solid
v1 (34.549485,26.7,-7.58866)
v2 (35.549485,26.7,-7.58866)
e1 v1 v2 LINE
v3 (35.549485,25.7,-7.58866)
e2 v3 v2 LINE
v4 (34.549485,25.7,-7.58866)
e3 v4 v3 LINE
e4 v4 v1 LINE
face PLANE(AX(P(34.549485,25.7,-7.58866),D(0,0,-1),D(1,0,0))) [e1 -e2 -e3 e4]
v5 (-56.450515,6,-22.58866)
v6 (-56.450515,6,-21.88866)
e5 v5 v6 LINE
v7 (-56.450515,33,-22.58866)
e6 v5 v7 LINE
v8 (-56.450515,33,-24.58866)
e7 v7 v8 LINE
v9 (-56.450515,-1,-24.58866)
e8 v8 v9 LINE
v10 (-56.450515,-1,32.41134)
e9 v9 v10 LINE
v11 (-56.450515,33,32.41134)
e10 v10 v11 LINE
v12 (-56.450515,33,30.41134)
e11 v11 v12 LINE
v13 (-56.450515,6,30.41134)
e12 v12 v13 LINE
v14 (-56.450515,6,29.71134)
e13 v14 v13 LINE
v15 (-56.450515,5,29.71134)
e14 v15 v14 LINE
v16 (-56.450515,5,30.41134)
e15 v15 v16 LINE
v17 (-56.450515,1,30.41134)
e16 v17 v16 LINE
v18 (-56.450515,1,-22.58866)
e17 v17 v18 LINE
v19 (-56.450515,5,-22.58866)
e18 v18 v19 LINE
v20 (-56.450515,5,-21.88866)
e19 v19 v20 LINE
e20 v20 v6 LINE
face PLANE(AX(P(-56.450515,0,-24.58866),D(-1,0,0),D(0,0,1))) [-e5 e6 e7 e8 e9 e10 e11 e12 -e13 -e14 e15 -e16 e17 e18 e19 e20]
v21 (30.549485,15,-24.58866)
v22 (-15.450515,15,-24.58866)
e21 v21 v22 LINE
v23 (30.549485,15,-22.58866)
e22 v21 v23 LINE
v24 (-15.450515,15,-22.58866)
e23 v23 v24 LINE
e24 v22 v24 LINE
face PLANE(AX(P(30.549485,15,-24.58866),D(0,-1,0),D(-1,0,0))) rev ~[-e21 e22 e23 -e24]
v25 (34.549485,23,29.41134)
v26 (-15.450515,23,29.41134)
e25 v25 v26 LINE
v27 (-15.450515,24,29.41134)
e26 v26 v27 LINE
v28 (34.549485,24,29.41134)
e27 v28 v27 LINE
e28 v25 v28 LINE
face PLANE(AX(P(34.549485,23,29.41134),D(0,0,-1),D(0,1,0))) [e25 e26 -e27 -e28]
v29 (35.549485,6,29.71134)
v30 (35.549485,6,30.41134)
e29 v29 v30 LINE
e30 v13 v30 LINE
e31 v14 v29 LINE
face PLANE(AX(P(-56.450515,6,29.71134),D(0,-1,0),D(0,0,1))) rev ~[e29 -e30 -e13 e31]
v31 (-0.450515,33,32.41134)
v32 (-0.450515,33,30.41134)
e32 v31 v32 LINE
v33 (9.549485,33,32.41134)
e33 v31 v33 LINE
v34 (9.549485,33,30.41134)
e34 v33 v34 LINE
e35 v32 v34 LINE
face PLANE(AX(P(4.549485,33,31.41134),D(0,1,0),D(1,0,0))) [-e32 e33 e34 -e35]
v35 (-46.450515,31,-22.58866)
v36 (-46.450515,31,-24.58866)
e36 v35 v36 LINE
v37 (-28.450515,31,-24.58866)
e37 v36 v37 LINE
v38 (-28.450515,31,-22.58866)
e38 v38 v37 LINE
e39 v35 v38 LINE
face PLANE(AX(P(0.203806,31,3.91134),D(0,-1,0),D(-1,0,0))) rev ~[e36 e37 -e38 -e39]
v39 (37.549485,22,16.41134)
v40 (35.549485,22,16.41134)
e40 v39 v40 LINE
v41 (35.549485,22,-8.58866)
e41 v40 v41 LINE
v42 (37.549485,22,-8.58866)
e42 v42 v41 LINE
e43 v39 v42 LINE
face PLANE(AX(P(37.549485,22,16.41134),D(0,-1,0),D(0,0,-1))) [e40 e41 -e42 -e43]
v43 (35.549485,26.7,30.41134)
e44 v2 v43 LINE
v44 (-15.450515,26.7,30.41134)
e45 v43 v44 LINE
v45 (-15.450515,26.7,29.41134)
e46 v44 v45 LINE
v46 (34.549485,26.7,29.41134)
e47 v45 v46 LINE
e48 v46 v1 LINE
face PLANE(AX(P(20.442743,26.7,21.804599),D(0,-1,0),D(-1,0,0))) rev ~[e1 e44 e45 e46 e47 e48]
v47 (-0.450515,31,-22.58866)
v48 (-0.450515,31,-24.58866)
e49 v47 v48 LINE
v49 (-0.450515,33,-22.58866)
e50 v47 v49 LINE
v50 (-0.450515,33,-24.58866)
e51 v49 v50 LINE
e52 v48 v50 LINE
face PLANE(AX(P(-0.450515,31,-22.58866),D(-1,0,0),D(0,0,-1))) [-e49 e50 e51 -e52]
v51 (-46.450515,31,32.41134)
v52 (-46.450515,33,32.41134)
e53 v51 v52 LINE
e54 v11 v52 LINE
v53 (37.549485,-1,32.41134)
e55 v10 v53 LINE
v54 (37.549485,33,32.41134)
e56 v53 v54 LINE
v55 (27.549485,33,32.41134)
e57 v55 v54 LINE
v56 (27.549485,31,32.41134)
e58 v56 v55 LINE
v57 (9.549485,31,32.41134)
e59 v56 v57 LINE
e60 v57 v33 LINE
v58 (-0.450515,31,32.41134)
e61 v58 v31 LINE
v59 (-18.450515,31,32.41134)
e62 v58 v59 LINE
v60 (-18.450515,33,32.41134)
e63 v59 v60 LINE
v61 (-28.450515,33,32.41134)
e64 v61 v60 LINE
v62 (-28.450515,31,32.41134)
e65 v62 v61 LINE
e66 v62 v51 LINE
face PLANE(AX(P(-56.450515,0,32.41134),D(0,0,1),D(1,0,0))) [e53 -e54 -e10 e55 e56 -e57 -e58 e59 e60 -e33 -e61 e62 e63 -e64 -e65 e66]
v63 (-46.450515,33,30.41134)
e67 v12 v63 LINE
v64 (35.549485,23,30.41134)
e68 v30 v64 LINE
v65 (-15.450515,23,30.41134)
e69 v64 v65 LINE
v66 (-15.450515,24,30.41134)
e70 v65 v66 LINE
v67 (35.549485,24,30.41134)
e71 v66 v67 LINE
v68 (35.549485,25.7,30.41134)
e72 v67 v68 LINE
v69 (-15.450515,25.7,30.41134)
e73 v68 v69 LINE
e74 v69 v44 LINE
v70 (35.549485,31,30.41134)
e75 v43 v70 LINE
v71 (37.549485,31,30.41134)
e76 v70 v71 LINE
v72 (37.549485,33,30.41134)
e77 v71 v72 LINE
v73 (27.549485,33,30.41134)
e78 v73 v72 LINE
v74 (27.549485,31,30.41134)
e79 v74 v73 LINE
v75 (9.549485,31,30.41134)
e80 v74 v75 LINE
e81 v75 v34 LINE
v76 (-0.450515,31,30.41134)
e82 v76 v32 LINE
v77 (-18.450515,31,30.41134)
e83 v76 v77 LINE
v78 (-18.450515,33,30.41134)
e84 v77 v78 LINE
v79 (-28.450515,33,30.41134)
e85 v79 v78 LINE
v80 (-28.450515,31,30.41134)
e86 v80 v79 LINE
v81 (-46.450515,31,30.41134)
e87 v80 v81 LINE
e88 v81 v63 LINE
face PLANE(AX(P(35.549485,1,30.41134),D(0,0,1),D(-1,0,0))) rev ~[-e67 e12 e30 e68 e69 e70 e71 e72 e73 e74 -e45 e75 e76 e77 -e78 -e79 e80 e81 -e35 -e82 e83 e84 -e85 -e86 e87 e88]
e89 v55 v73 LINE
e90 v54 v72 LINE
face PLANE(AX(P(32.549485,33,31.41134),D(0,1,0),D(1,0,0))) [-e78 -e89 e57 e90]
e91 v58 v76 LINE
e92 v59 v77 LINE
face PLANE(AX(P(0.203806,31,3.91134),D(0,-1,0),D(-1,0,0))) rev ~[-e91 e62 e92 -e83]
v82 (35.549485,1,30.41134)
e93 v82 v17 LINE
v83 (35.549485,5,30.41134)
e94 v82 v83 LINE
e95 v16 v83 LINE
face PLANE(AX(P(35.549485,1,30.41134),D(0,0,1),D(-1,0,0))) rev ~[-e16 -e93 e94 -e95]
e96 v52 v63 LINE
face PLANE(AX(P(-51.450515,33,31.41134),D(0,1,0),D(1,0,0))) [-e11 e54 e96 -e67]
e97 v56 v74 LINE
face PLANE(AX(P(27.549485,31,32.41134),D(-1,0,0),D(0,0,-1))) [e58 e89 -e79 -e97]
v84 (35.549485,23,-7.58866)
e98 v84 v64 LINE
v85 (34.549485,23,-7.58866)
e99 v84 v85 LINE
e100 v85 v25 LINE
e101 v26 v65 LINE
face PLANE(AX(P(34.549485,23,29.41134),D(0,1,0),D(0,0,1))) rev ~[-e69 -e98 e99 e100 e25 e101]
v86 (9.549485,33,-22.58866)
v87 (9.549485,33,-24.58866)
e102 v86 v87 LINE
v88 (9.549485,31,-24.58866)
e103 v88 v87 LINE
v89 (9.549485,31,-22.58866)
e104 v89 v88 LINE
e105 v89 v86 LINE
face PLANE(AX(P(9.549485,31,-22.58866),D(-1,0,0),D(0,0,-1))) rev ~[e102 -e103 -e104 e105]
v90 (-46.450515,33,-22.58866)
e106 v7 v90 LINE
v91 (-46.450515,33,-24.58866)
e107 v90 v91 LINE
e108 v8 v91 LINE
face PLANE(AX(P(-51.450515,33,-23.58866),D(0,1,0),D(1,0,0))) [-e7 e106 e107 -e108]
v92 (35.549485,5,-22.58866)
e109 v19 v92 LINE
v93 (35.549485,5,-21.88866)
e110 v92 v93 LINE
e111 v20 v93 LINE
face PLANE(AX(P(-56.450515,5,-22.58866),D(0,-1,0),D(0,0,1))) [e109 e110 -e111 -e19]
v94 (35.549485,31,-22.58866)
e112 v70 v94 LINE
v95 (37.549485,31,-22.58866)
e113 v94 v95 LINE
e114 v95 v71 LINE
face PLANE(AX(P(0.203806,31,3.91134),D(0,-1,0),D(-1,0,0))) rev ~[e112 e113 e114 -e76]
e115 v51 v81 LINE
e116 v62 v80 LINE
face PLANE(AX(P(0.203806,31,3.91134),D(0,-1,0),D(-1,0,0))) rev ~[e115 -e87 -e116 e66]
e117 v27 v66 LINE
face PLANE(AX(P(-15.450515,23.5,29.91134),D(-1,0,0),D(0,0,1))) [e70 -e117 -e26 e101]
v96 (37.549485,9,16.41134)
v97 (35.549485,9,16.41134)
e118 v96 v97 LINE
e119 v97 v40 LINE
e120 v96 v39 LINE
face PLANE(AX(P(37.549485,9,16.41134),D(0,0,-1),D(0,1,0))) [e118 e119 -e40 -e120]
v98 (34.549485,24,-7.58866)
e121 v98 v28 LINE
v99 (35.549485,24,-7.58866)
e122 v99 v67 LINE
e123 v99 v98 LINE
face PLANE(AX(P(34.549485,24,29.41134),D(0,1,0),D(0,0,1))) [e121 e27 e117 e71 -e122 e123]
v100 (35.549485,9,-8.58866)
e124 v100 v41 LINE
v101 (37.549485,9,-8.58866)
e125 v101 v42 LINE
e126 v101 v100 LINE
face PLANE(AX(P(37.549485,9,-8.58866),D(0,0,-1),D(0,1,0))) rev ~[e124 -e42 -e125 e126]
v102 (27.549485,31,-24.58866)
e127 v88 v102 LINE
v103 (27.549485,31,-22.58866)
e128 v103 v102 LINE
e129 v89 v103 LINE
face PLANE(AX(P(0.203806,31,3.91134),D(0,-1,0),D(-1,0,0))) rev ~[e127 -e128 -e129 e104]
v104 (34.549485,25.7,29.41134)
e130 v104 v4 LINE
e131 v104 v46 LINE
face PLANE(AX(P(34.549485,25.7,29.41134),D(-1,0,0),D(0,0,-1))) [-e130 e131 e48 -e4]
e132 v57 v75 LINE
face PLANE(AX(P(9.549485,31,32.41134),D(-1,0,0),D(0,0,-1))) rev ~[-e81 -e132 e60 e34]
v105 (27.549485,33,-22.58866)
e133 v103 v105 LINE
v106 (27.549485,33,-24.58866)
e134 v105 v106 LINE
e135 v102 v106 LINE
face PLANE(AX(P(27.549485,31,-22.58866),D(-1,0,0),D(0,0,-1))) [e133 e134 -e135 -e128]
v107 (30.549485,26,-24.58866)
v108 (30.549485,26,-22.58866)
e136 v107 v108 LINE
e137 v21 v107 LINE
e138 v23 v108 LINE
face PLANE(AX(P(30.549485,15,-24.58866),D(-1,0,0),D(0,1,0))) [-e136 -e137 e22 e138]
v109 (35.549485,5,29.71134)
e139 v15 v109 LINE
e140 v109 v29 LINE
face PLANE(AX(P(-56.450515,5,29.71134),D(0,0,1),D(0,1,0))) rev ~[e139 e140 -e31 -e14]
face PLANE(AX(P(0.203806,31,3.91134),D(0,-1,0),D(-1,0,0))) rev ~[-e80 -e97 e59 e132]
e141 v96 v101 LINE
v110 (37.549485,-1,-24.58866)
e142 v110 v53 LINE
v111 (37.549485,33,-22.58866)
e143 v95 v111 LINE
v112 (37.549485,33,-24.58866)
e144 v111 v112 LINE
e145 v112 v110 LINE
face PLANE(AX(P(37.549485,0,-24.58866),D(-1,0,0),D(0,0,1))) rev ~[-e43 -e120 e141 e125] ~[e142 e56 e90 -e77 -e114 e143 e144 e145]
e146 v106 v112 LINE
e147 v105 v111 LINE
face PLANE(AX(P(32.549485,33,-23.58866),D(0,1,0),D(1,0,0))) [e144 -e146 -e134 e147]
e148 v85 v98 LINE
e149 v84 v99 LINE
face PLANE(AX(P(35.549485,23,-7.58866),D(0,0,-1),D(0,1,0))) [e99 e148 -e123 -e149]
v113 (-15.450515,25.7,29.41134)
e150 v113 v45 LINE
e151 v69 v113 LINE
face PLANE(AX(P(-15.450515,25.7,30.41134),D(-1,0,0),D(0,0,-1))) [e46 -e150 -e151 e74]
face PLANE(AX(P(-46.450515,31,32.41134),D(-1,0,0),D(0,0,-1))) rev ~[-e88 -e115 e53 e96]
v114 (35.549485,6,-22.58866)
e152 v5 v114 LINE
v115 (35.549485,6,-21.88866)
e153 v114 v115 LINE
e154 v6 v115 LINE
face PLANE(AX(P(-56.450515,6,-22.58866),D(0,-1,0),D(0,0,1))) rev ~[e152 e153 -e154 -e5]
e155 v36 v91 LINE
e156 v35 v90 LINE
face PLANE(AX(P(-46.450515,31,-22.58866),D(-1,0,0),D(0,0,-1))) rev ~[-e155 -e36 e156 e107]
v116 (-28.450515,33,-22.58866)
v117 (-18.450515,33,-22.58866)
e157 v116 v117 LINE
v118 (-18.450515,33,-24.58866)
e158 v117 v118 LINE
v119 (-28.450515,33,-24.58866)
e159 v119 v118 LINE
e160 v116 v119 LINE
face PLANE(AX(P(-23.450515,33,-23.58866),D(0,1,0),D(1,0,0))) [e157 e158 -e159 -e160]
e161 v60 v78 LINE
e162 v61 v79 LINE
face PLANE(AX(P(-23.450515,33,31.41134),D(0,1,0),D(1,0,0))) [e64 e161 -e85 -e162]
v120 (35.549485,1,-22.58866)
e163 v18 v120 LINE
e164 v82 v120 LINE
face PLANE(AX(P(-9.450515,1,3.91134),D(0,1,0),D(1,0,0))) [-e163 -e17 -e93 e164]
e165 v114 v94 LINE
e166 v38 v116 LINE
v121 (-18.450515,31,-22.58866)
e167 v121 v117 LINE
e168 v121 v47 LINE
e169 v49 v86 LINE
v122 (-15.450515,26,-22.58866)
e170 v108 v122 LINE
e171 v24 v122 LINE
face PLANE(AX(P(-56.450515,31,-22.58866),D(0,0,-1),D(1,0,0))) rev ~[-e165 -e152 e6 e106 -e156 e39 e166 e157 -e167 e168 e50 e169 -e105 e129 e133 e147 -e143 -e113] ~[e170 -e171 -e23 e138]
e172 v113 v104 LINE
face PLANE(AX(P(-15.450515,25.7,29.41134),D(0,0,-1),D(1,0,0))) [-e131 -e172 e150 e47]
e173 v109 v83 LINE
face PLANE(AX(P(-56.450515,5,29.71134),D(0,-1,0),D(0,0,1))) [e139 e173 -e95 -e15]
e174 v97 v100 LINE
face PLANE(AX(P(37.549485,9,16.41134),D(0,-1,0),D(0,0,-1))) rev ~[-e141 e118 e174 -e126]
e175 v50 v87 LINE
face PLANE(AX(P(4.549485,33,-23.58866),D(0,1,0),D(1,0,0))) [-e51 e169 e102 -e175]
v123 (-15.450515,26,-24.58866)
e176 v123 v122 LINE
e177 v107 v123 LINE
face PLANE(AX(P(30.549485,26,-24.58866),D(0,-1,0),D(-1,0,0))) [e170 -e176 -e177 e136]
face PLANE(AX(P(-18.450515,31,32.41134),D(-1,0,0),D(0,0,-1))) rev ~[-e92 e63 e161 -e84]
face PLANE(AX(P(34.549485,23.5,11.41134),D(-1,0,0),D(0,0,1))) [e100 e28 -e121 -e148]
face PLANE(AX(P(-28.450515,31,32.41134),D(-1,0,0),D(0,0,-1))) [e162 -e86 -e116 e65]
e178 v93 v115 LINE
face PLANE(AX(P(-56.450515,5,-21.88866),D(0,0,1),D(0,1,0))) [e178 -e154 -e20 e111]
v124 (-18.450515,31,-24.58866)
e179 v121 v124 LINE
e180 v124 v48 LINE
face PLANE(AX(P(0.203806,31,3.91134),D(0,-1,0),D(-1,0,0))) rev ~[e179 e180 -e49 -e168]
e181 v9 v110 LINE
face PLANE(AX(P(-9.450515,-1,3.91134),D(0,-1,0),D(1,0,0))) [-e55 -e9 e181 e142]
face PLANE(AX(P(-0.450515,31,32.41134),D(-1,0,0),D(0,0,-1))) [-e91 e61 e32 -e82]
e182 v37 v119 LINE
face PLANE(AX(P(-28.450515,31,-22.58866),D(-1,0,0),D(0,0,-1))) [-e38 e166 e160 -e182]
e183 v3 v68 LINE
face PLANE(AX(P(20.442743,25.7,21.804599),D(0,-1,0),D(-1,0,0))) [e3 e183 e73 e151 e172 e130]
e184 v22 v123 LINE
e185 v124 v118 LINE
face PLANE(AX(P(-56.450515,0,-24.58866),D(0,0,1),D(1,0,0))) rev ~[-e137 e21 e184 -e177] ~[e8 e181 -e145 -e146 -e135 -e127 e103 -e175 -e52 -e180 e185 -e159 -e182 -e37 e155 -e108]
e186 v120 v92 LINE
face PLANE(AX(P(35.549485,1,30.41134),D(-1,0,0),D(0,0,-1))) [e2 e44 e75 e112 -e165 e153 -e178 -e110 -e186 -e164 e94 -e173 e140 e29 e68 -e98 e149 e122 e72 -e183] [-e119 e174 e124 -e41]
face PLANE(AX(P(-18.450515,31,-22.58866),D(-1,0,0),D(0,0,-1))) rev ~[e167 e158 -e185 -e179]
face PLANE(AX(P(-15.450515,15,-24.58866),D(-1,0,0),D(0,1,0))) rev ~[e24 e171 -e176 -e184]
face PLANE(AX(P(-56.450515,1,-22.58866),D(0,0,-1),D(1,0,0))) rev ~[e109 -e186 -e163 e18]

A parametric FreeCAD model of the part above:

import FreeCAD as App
import Part
import Sketcher

V = App.Vector
Q = App.Units.Quantity

doc = App.newDocument("Part")
params = doc.addObject("Spreadsheet::Sheet", "Params")
for row, (alias, value) in enumerate([
    ("sketch1_width", "94 mm"),
    ("sketch1_height", "57 mm"),
    ("pad1_length", "1 mm"),
    ("sketch2_width", "94 mm"),
    ("sketch2_width2", "92 mm"),
    ("sketch2_height", "2 mm"),
    ("sketch2_height2", "53 mm"),
    ("pad2_length", "30 mm"),
    ("sketch3_width", "1 mm"),
    ("sketch3_height", "0.7 mm"),
    ("pad3_length", "92 mm"),
    ("sketch4_width", "46 mm"),
    ("sketch4_height", "11 mm"),
    ("pocket1_length", "30 mm"),
    ("sketch5_width", "10 mm"),
    ("sketch5_height", "2 mm"),
    ("pad4_length", "2 mm"),
    ("sketch6_width", "13 mm"),
    ("sketch6_height", "25 mm"),
    ("pocket2_length", "2 mm"),
    ("sketch7_width", "1 mm"),
    ("sketch7_height", "38 mm"),
    ("pad5_length", "1 mm"),
    ("sketch8_width", "1 mm"),
    ("pad6_length", "50 mm"),
    ("sketch9_width", "1 mm"),
    ("sketch9_width2", "50 mm"),
    ("sketch9_height", "37 mm"),
    ("pad7_length", "1 mm"),
    ("sketch10_width", "94 mm"),
    ("sketch10_height", "57 mm"),
    ("pad8_length", "1 mm"),
], start=1):
    params.set(f"A{row}", alias)
    params.set(f"B{row}", "=" + value)
    params.setAlias(f"B{row}", alias)

body = doc.addObject("PartDesign::Body", "Body")

sketch1 = body.newObject("Sketcher::SketchObject", "Sketch")
sketch1.AttachmentSupport = (doc.getObject("XZ_Plane"), [""])
sketch1.MapMode = "FlatFace"
sketch1.addGeometry(Part.LineSegment(V(-56.450515, -24.58866, 0), V(-56.450515, 32.41134, 0)), False)
sketch1.addGeometry(Part.LineSegment(V(-56.450515, 32.41134, 0), V(37.549485, 32.41134, 0)), False)
sketch1.addGeometry(Part.LineSegment(V(37.549485, 32.41134, 0), V(37.549485, -24.58866, 0)), False)
sketch1.addGeometry(Part.LineSegment(V(37.549485, -24.58866, 0), V(-56.450515, -24.58866, 0)), False)
sketch1.addConstraint(Sketcher.Constraint("Coincident", 0, 2, 1, 1))
sketch1.addConstraint(Sketcher.Constraint("Coincident", 1, 2, 2, 1))
sketch1.addConstraint(Sketcher.Constraint("Coincident", 2, 2, 3, 1))
sketch1.addConstraint(Sketcher.Constraint("Coincident", 3, 2, 0, 1))
sketch1.addConstraint(Sketcher.Constraint("Vertical", 0))
sketch1.addConstraint(Sketcher.Constraint("Horizontal", 1))
sketch1.addConstraint(Sketcher.Constraint("Vertical", 2))
sketch1.addConstraint(Sketcher.Constraint("Horizontal", 3))
sketch1.addConstraint(Sketcher.Constraint("DistanceX", 1, 1, 1, 2, Q("94 mm")))
sketch1.addConstraint(Sketcher.Constraint("DistanceY", 0, 1, 0, 2, Q("57 mm")))
sketch1.addConstraint(Sketcher.Constraint("DistanceY", -1, 1, 0, 2, Q("32.41134 mm")))
sketch1.addConstraint(Sketcher.Constraint("DistanceX", 0, 2, -1, 1, Q("56.450515 mm")))
sketch1.setExpression("Constraints[8]", "Params.sketch1_width")
sketch1.setExpression("Constraints[9]", "Params.sketch1_height")
pad1 = body.newObject("PartDesign::Pad", "Pad")
pad1.Profile = sketch1
pad1.setExpression("Length", "Params.pad1_length")
pad1.Reversed = True

sketch2 = body.newObject("Sketcher::SketchObject", "Sketch001")
sketch2.AttachmentSupport = (doc.getObject("XZ_Plane"), [""])
sketch2.MapMode = "FlatFace"
sketch2.AttachmentOffset = App.Placement(V(0, 0, -1), App.Rotation())
sketch2.addGeometry(Part.LineSegment(V(37.549485, -24.58866, 0), V(-56.450515, -24.58866, 0)), False)
sketch2.addGeometry(Part.LineSegment(V(-56.450515, -24.58866, 0), V(-56.450515, -22.58866, 0)), False)
sketch2.addGeometry(Part.LineSegment(V(-56.450515, -22.58866, 0), V(35.549485, -22.58866, 0)), False)
sketch2.addGeometry(Part.LineSegment(V(35.549485, -22.58866, 0), V(35.549485, 30.41134, 0)), False)
sketch2.addGeometry(Part.LineSegment(V(35.549485, 30.41134, 0), V(-56.450515, 30.41134, 0)), False)
sketch2.addGeometry(Part.LineSegment(V(-56.450515, 30.41134, 0), V(-56.450515, 32.41134, 0)), False)
sketch2.addGeometry(Part.LineSegment(V(-56.450515, 32.41134, 0), V(37.549485, 32.41134, 0)), False)
sketch2.addGeometry(Part.LineSegment(V(37.549485, 32.41134, 0), V(37.549485, -24.58866, 0)), False)
sketch2.addConstraint(Sketcher.Constraint("Coincident", 0, 2, 1, 1))
sketch2.addConstraint(Sketcher.Constraint("Coincident", 1, 2, 2, 1))
sketch2.addConstraint(Sketcher.Constraint("Coincident", 2, 2, 3, 1))
sketch2.addConstraint(Sketcher.Constraint("Coincident", 3, 2, 4, 1))
sketch2.addConstraint(Sketcher.Constraint("Coincident", 4, 2, 5, 1))
sketch2.addConstraint(Sketcher.Constraint("Coincident", 5, 2, 6, 1))
sketch2.addConstraint(Sketcher.Constraint("Coincident", 6, 2, 7, 1))
sketch2.addConstraint(Sketcher.Constraint("Coincident", 7, 2, 0, 1))
sketch2.addConstraint(Sketcher.Constraint("Horizontal", 0))
sketch2.addConstraint(Sketcher.Constraint("Vertical", 1))
sketch2.addConstraint(Sketcher.Constraint("Horizontal", 2))
sketch2.addConstraint(Sketcher.Constraint("Vertical", 3))
sketch2.addConstraint(Sketcher.Constraint("Horizontal", 4))
sketch2.addConstraint(Sketcher.Constraint("Vertical", 5))
sketch2.addConstraint(Sketcher.Constraint("Horizontal", 6))
sketch2.addConstraint(Sketcher.Constraint("Vertical", 7))
sketch2.addConstraint(Sketcher.Constraint("Vertical", 1, 2, 4, 2))
sketch2.addConstraint(Sketcher.Constraint("Equal", 1, 5))
sketch2.addConstraint(Sketcher.Constraint("DistanceX", 0, 2, 0, 1, Q("94 mm")))
sketch2.addConstraint(Sketcher.Constraint("DistanceX", 2, 1, 2, 2, Q("92 mm")))
sketch2.addConstraint(Sketcher.Constraint("DistanceY", 1, 1, 1, 2, Q("2 mm")))
sketch2.addConstraint(Sketcher.Constraint("DistanceY", 3, 1, 3, 2, Q("53 mm")))
sketch2.addConstraint(Sketcher.Constraint("DistanceY", 0, 2, -1, 1, Q("24.58866 mm")))
sketch2.addConstraint(Sketcher.Constraint("DistanceX", 0, 2, -1, 1, Q("56.450515 mm")))
sketch2.setExpression("Constraints[18]", "Params.sketch2_width")
sketch2.setExpression("Constraints[19]", "Params.sketch2_width2")
sketch2.setExpression("Constraints[20]", "Params.sketch2_height")
sketch2.setExpression("Constraints[21]", "Params.sketch2_height2")
pad2 = body.newObject("PartDesign::Pad", "Pad001")
pad2.Profile = sketch2
pad2.setExpression("Length", "Params.pad2_length")
pad2.Reversed = True

sketch3 = body.newObject("Sketcher::SketchObject", "Sketch002")
sketch3.AttachmentSupport = (doc.getObject("YZ_Plane"), [""])
sketch3.MapMode = "FlatFace"
sketch3.AttachmentOffset = App.Placement(V(0, 0, -56.450515), App.Rotation())
sketch3.addGeometry(Part.LineSegment(V(6, -22.58866, 0), V(5, -22.58866, 0)), False)
sketch3.addGeometry(Part.LineSegment(V(5, -22.58866, 0), V(5, -21.88866, 0)), False)
sketch3.addGeometry(Part.LineSegment(V(5, -21.88866, 0), V(6, -21.88866, 0)), False)
sketch3.addGeometry(Part.LineSegment(V(6, -21.88866, 0), V(6, -22.58866, 0)), False)
sketch3.addGeometry(Part.LineSegment(V(6, 29.71134, 0), V(5, 29.71134, 0)), False)
sketch3.addGeometry(Part.LineSegment(V(5, 29.71134, 0), V(5, 30.41134, 0)), False)
sketch3.addGeometry(Part.LineSegment(V(5, 30.41134, 0), V(6, 30.41134, 0)), False)
sketch3.addGeometry(Part.LineSegment(V(6, 30.41134, 0), V(6, 29.71134, 0)), False)
sketch3.addConstraint(Sketcher.Constraint("Coincident", 0, 2, 1, 1))
sketch3.addConstraint(Sketcher.Constraint("Coincident", 1, 2, 2, 1))
sketch3.addConstraint(Sketcher.Constraint("Coincident", 2, 2, 3, 1))
sketch3.addConstraint(Sketcher.Constraint("Coincident", 3, 2, 0, 1))
sketch3.addConstraint(Sketcher.Constraint("Coincident", 4, 2, 5, 1))
sketch3.addConstraint(Sketcher.Constraint("Coincident", 5, 2, 6, 1))
sketch3.addConstraint(Sketcher.Constraint("Coincident", 6, 2, 7, 1))
sketch3.addConstraint(Sketcher.Constraint("Coincident", 7, 2, 4, 1))
sketch3.addConstraint(Sketcher.Constraint("Horizontal", 0))
sketch3.addConstraint(Sketcher.Constraint("Vertical", 1))
sketch3.addConstraint(Sketcher.Constraint("Horizontal", 2))
sketch3.addConstraint(Sketcher.Constraint("Vertical", 3))
sketch3.addConstraint(Sketcher.Constraint("Horizontal", 4))
sketch3.addConstraint(Sketcher.Constraint("Vertical", 5))
sketch3.addConstraint(Sketcher.Constraint("Horizontal", 6))
sketch3.addConstraint(Sketcher.Constraint("Vertical", 7))
sketch3.addConstraint(Sketcher.Constraint("Vertical", 1, 2, 4, 2))
sketch3.addConstraint(Sketcher.Constraint("Vertical", 3, 2, 6, 2))
sketch3.addConstraint(Sketcher.Constraint("Equal", 3, 5))
sketch3.addConstraint(Sketcher.Constraint("DistanceX", 0, 2, 0, 1, Q("1 mm")))
sketch3.addConstraint(Sketcher.Constraint("DistanceY", 1, 1, 1, 2, Q("0.7 mm")))
sketch3.addConstraint(Sketcher.Constraint("DistanceX", -1, 1, 0, 2, Q("5 mm")))
sketch3.addConstraint(Sketcher.Constraint("DistanceY", 0, 2, 5, 2, Q("53 mm")))
sketch3.addConstraint(Sketcher.Constraint("DistanceY", 0, 2, -1, 1, Q("22.58866 mm")))
sketch3.setExpression("Constraints[19]", "Params.sketch3_width")
sketch3.setExpression("Constraints[20]", "Params.sketch3_height")
pad3 = body.newObject("PartDesign::Pad", "Pad002")
pad3.Profile = sketch3
pad3.setExpression("Length", "Params.pad3_length")

sketch4 = body.newObject("Sketcher::SketchObject", "Sketch003")
sketch4.AttachmentSupport = (doc.getObject("XY_Plane"), [""])
sketch4.MapMode = "FlatFace"
sketch4.AttachmentOffset = App.Placement(V(0, 0, -24.58866), App.Rotation())
sketch4.addGeometry(Part.LineSegment(V(30.549485, 26, 0), V(30.549485, 15, 0)), False)
sketch4.addGeometry(Part.LineSegment(V(30.549485, 15, 0), V(-15.450515, 15, 0)), False)
sketch4.addGeometry(Part.LineSegment(V(-15.450515, 15, 0), V(-15.450515, 26, 0)), False)
sketch4.addGeometry(Part.LineSegment(V(-15.450515, 26, 0), V(30.549485, 26, 0)), False)
sketch4.addConstraint(Sketcher.Constraint("Coincident", 0, 2, 1, 1))
sketch4.addConstraint(Sketcher.Constraint("Coincident", 1, 2, 2, 1))
sketch4.addConstraint(Sketcher.Constraint("Coincident", 2, 2, 3, 1))
sketch4.addConstraint(Sketcher.Constraint("Coincident", 3, 2, 0, 1))
sketch4.addConstraint(Sketcher.Constraint("Vertical", 0))
sketch4.addConstraint(Sketcher.Constraint("Horizontal", 1))
sketch4.addConstraint(Sketcher.Constraint("Vertical", 2))
sketch4.addConstraint(Sketcher.Constraint("Horizontal", 3))
sketch4.addConstraint(Sketcher.Constraint("DistanceX", 1, 2, 1, 1, Q("46 mm")))
sketch4.addConstraint(Sketcher.Constraint("DistanceY", 0, 2, 0, 1, Q("11 mm")))
sketch4.addConstraint(Sketcher.Constraint("DistanceY", -1, 1, 0, 2, Q("15 mm")))
sketch4.addConstraint(Sketcher.Constraint("DistanceX", -1, 1, 0, 2, Q("30.549485 mm")))
sketch4.setExpression("Constraints[8]", "Params.sketch4_width")
sketch4.setExpression("Constraints[9]", "Params.sketch4_height")
pocket1 = body.newObject("PartDesign::Pocket", "Pocket")
pocket1.Profile = sketch4
pocket1.setExpression("Length", "Params.pocket1_length")
pocket1.Reversed = True

sketch5 = body.newObject("Sketcher::SketchObject", "Sketch004")
sketch5.AttachmentSupport = (doc.getObject("XZ_Plane"), [""])
sketch5.MapMode = "FlatFace"
sketch5.AttachmentOffset = App.Placement(V(0, 0, -31), App.Rotation())
sketch5.addGeometry(Part.LineSegment(V(-56.450515, -24.58866, 0), V(-56.450515, -22.58866, 0)), False)
sketch5.addGeometry(Part.LineSegment(V(-56.450515, -22.58866, 0), V(-46.450515, -22.58866, 0)), False)
sketch5.addGeometry(Part.LineSegment(V(-46.450515, -22.58866, 0), V(-46.450515, -24.58866, 0)), False)
sketch5.addGeometry(Part.LineSegment(V(-46.450515, -24.58866, 0), V(-56.450515, -24.58866, 0)), False)
sketch5.addGeometry(Part.LineSegment(V(-28.450515, -24.58866, 0), V(-28.450515, -22.58866, 0)), False)
sketch5.addGeometry(Part.LineSegment(V(-28.450515, -22.58866, 0), V(-18.450515, -22.58866, 0)), False)
sketch5.addGeometry(Part.LineSegment(V(-18.450515, -22.58866, 0), V(-18.450515, -24.58866, 0)), False)
sketch5.addGeometry(Part.LineSegment(V(-18.450515, -24.58866, 0), V(-28.450515, -24.58866, 0)), False)
sketch5.addGeometry(Part.LineSegment(V(-0.450515, -24.58866, 0), V(-0.450515, -22.58866, 0)), False)
sketch5.addGeometry(Part.LineSegment(V(-0.450515, -22.58866, 0), V(9.549485, -22.58866, 0)), False)
sketch5.addGeometry(Part.LineSegment(V(9.549485, -22.58866, 0), V(9.549485, -24.58866, 0)), False)
sketch5.addGeometry(Part.LineSegment(V(9.549485, -24.58866, 0), V(-0.450515, -24.58866, 0)), False)
sketch5.addGeometry(Part.LineSegment(V(27.549485, -24.58866, 0), V(27.549485, -22.58866, 0)), False)
sketch5.addGeometry(Part.LineSegment(V(27.549485, -22.58866, 0), V(37.549485, -22.58866, 0)), False)
sketch5.addGeometry(Part.LineSegment(V(37.549485, -22.58866, 0), V(37.549485, -24.58866, 0)), False)
sketch5.addGeometry(Part.LineSegment(V(37.549485, -24.58866, 0), V(27.549485, -24.58866, 0)), False)
sketch5.addGeometry(Part.LineSegment(V(-56.450515, 30.41134, 0), V(-56.450515, 32.41134, 0)), False)
sketch5.addGeometry(Part.LineSegment(V(-56.450515, 32.41134, 0), V(-46.450515, 32.41134, 0)), False)
sketch5.addGeometry(Part.LineSegment(V(-46.450515, 32.41134, 0), V(-46.450515, 30.41134, 0)), False)
sketch5.addGeometry(Part.LineSegment(V(-46.450515, 30.41134, 0), V(-56.450515, 30.41134, 0)), False)
sketch5.addGeometry(Part.LineSegment(V(-28.450515, 30.41134, 0), V(-28.450515, 32.41134, 0)), False)
sketch5.addGeometry(Part.LineSegment(V(-28.450515, 32.41134, 0), V(-18.450515, 32.41134, 0)), False)
sketch5.addGeometry(Part.LineSegment(V(-18.450515, 32.41134, 0), V(-18.450515, 30.41134, 0)), False)
sketch5.addGeometry(Part.LineSegment(V(-18.450515, 30.41134, 0), V(-28.450515, 30.41134, 0)), False)
sketch5.addGeometry(Part.LineSegment(V(-0.450515, 30.41134, 0), V(-0.450515, 32.41134, 0)), False)
sketch5.addGeometry(Part.LineSegment(V(-0.450515, 32.41134, 0), V(9.549485, 32.41134, 0)), False)
sketch5.addGeometry(Part.LineSegment(V(9.549485, 32.41134, 0), V(9.549485, 30.41134, 0)), False)
sketch5.addGeometry(Part.LineSegment(V(9.549485, 30.41134, 0), V(-0.450515, 30.41134, 0)), False)
sketch5.addGeometry(Part.LineSegment(V(27.549485, 30.41134, 0), V(27.549485, 32.41134, 0)), False)
sketch5.addGeometry(Part.LineSegment(V(27.549485, 32.41134, 0), V(37.549485, 32.41134, 0)), False)
sketch5.addGeometry(Part.LineSegment(V(37.549485, 32.41134, 0), V(37.549485, 30.41134, 0)), False)
sketch5.addGeometry(Part.LineSegment(V(37.549485, 30.41134, 0), V(27.549485, 30.41134, 0)), False)
sketch5.addConstraint(Sketcher.Constraint("Coincident", 0, 2, 1, 1))
sketch5.addConstraint(Sketcher.Constraint("Coincident", 1, 2, 2, 1))
sketch5.addConstraint(Sketcher.Constraint("Coincident", 2, 2, 3, 1))
sketch5.addConstraint(Sketcher.Constraint("Coincident", 3, 2, 0, 1))
sketch5.addConstraint(Sketcher.Constraint("Coincident", 4, 2, 5, 1))
sketch5.addConstraint(Sketcher.Constraint("Coincident", 5, 2, 6, 1))
sketch5.addConstraint(Sketcher.Constraint("Coincident", 6, 2, 7, 1))
sketch5.addConstraint(Sketcher.Constraint("Coincident", 7, 2, 4, 1))
sketch5.addConstraint(Sketcher.Constraint("Coincident", 8, 2, 9, 1))
sketch5.addConstraint(Sketcher.Constraint("Coincident", 9, 2, 10, 1))
sketch5.addConstraint(Sketcher.Constraint("Coincident", 10, 2, 11, 1))
sketch5.addConstraint(Sketcher.Constraint("Coincident", 11, 2, 8, 1))
sketch5.addConstraint(Sketcher.Constraint("Coincident", 12, 2, 13, 1))
sketch5.addConstraint(Sketcher.Constraint("Coincident", 13, 2, 14, 1))
sketch5.addConstraint(Sketcher.Constraint("Coincident", 14, 2, 15, 1))
sketch5.addConstraint(Sketcher.Constraint("Coincident", 15, 2, 12, 1))
sketch5.addConstraint(Sketcher.Constraint("Coincident", 16, 2, 17, 1))
sketch5.addConstraint(Sketcher.Constraint("Coincident", 17, 2, 18, 1))
sketch5.addConstraint(Sketcher.Constraint("Coincident", 18, 2, 19, 1))
sketch5.addConstraint(Sketcher.Constraint("Coincident", 19, 2, 16, 1))
sketch5.addConstraint(Sketcher.Constraint("Coincident", 20, 2, 21, 1))
sketch5.addConstraint(Sketcher.Constraint("Coincident", 21, 2, 22, 1))
sketch5.addConstraint(Sketcher.Constraint("Coincident", 22, 2, 23, 1))
sketch5.addConstraint(Sketcher.Constraint("Coincident", 23, 2, 20, 1))
sketch5.addConstraint(Sketcher.Constraint("Coincident", 24, 2, 25, 1))
sketch5.addConstraint(Sketcher.Constraint("Coincident", 25, 2, 26, 1))
sketch5.addConstraint(Sketcher.Constraint("Coincident", 26, 2, 27, 1))
sketch5.addConstraint(Sketcher.Constraint("Coincident", 27, 2, 24, 1))
sketch5.addConstraint(Sketcher.Constraint("Coincident", 28, 2, 29, 1))
sketch5.addConstraint(Sketcher.Constraint("Coincident", 29, 2, 30, 1))
sketch5.addConstraint(Sketcher.Constraint("Coincident", 30, 2, 31, 1))
sketch5.addConstraint(Sketcher.Constraint("Coincident", 31, 2, 28, 1))
sketch5.addConstraint(Sketcher.Constraint("Vertical", 0))
sketch5.addConstraint(Sketcher.Constraint("Horizontal", 1))
sketch5.addConstraint(Sketcher.Constraint("Vertical", 2))
sketch5.addConstraint(Sketcher.Constraint("Horizontal", 3))
sketch5.addConstraint(Sketcher.Constraint("Vertical", 4))
sketch5.addConstraint(Sketcher.Constraint("Horizontal", 5))
sketch5.addConstraint(Sketcher.Constraint("Vertical", 6))
sketch5.addConstraint(Sketcher.Constraint("Horizontal", 7))
sketch5.addConstraint(Sketcher.Constraint("Vertical", 8))
sketch5.addConstraint(Sketcher.Constraint("Horizontal", 9))
sketch5.addConstraint(Sketcher.Constraint("Vertical", 10))
sketch5.addConstraint(Sketcher.Constraint("Horizontal", 11))
sketch5.addConstraint(Sketcher.Constraint("Vertical", 12))
sketch5.addConstraint(Sketcher.Constraint("Horizontal", 13))
sketch5.addConstraint(Sketcher.Constraint("Vertical", 14))
sketch5.addConstraint(Sketcher.Constraint("Horizontal", 15))
sketch5.addConstraint(Sketcher.Constraint("Vertical", 16))
sketch5.addConstraint(Sketcher.Constraint("Horizontal", 17))
sketch5.addConstraint(Sketcher.Constraint("Vertical", 18))
sketch5.addConstraint(Sketcher.Constraint("Horizontal", 19))
sketch5.addConstraint(Sketcher.Constraint("Vertical", 20))
sketch5.addConstraint(Sketcher.Constraint("Horizontal", 21))
sketch5.addConstraint(Sketcher.Constraint("Vertical", 22))
sketch5.addConstraint(Sketcher.Constraint("Horizontal", 23))
sketch5.addConstraint(Sketcher.Constraint("Vertical", 24))
sketch5.addConstraint(Sketcher.Constraint("Horizontal", 25))
sketch5.addConstraint(Sketcher.Constraint("Vertical", 26))
sketch5.addConstraint(Sketcher.Constraint("Horizontal", 27))
sketch5.addConstraint(Sketcher.Constraint("Vertical", 28))
sketch5.addConstraint(Sketcher.Constraint("Horizontal", 29))
sketch5.addConstraint(Sketcher.Constraint("Vertical", 30))
sketch5.addConstraint(Sketcher.Constraint("Horizontal", 31))
sketch5.addConstraint(Sketcher.Constraint("Horizontal", 1, 2, 4, 2))
sketch5.addConstraint(Sketcher.Constraint("Horizontal", 3, 2, 6, 2))
sketch5.addConstraint(Sketcher.Constraint("Horizontal", 5, 2, 8, 2))
sketch5.addConstraint(Sketcher.Constraint("Horizontal", 7, 2, 10, 2))
sketch5.addConstraint(Sketcher.Constraint("Horizontal", 9, 2, 12, 2))
sketch5.addConstraint(Sketcher.Constraint("Horizontal", 11, 2, 14, 2))
sketch5.addConstraint(Sketcher.Constraint("Horizontal", 17, 2, 20, 2))
sketch5.addConstraint(Sketcher.Constraint("Horizontal", 19, 2, 22, 2))
sketch5.addConstraint(Sketcher.Constraint("Horizontal", 21, 2, 24, 2))
sketch5.addConstraint(Sketcher.Constraint("Horizontal", 23, 2, 26, 2))
sketch5.addConstraint(Sketcher.Constraint("Horizontal", 25, 2, 28, 2))
sketch5.addConstraint(Sketcher.Constraint("Horizontal", 27, 2, 30, 2))
sketch5.addConstraint(Sketcher.Constraint("Vertical", 3, 2, 16, 2))
sketch5.addConstraint(Sketcher.Constraint("Vertical", 2, 2, 17, 2))
sketch5.addConstraint(Sketcher.Constraint("Vertical", 7, 2, 20, 2))
sketch5.addConstraint(Sketcher.Constraint("Vertical", 6, 2, 21, 2))
sketch5.addConstraint(Sketcher.Constraint("Vertical", 11, 2, 24, 2))
sketch5.addConstraint(Sketcher.Constraint("Vertical", 10, 2, 25, 2))
sketch5.addConstraint(Sketcher.Constraint("Vertical", 15, 2, 28, 2))
sketch5.addConstraint(Sketcher.Constraint("Vertical", 14, 2, 29, 2))
sketch5.addConstraint(Sketcher.Constraint("Equal", 3, 5))
sketch5.addConstraint(Sketcher.Constraint("Equal", 7, 9))
sketch5.addConstraint(Sketcher.Constraint("Equal", 11, 13))
sketch5.addConstraint(Sketcher.Constraint("Equal", 14, 16))
sketch5.addConstraint(Sketcher.Constraint("DistanceX", 1, 1, 1, 2, Q("10 mm")))
sketch5.addConstraint(Sketcher.Constraint("DistanceY", 0, 1, 0, 2, Q("2 mm")))
sketch5.addConstraint(Sketcher.Constraint("DistanceX", 1, 2, 4, 2, Q("18 mm")))
sketch5.addConstraint(Sketcher.Constraint("DistanceX", 5, 2, 8, 2, Q("18 mm")))
sketch5.addConstraint(Sketcher.Constraint("DistanceX", 9, 2, 12, 2, Q("18 mm")))
sketch5.addConstraint(Sketcher.Constraint("DistanceY", 0, 2, 16, 2, Q("55 mm")))
sketch5.addConstraint(Sketcher.Constraint("DistanceY", 0, 2, -1, 1, Q("22.58866 mm")))
sketch5.addConstraint(Sketcher.Constraint("DistanceX", 0, 2, -1, 1, Q("56.450515 mm")))
sketch5.setExpression("Constraints[88]", "Params.sketch5_width")
sketch5.setExpression("Constraints[89]", "Params.sketch5_height")
pad4 = body.newObject("PartDesign::Pad", "Pad003")
pad4.Profile = sketch5
pad4.setExpression("Length", "Params.pad4_length")
pad4.Reversed = True

sketch6 = body.newObject("Sketcher::SketchObject", "Sketch005")
sketch6.AttachmentSupport = (doc.getObject("YZ_Plane"), [""])
sketch6.MapMode = "FlatFace"
sketch6.AttachmentOffset = App.Placement(V(0, 0, 37.549485), App.Rotation())
sketch6.addGeometry(Part.LineSegment(V(22, 16.41134, 0), V(9, 16.41134, 0)), False)
sketch6.addGeometry(Part.LineSegment(V(9, 16.41134, 0), V(9, -8.58866, 0)), False)
sketch6.addGeometry(Part.LineSegment(V(9, -8.58866, 0), V(22, -8.58866, 0)), False)
sketch6.addGeometry(Part.LineSegment(V(22, -8.58866, 0), V(22, 16.41134, 0)), False)
sketch6.addConstraint(Sketcher.Constraint("Coincident", 0, 2, 1, 1))
sketch6.addConstraint(Sketcher.Constraint("Coincident", 1, 2, 2, 1))
sketch6.addConstraint(Sketcher.Constraint("Coincident", 2, 2, 3, 1))
sketch6.addConstraint(Sketcher.Constraint("Coincident", 3, 2, 0, 1))
sketch6.addConstraint(Sketcher.Constraint("Horizontal", 0))
sketch6.addConstraint(Sketcher.Constraint("Vertical", 1))
sketch6.addConstraint(Sketcher.Constraint("Horizontal", 2))
sketch6.addConstraint(Sketcher.Constraint("Vertical", 3))
sketch6.addConstraint(Sketcher.Constraint("DistanceX", 0, 2, 0, 1, Q("13 mm")))
sketch6.addConstraint(Sketcher.Constraint("DistanceY", 1, 2, 1, 1, Q("25 mm")))
sketch6.addConstraint(Sketcher.Constraint("DistanceX", -1, 1, 0, 2, Q("9 mm")))
sketch6.addConstraint(Sketcher.Constraint("DistanceY", -1, 1, 0, 2, Q("16.41134 mm")))
sketch6.setExpression("Constraints[8]", "Params.sketch6_width")
sketch6.setExpression("Constraints[9]", "Params.sketch6_height")
pocket2 = body.newObject("PartDesign::Pocket", "Pocket001")
pocket2.Profile = sketch6
pocket2.setExpression("Length", "Params.pocket2_length")

sketch7 = body.newObject("Sketcher::SketchObject", "Sketch006")
sketch7.AttachmentSupport = (doc.getObject("YZ_Plane"), [""])
sketch7.MapMode = "FlatFace"
sketch7.AttachmentOffset = App.Placement(V(0, 0, 35.549485), App.Rotation())
sketch7.addGeometry(Part.LineSegment(V(24, -7.58866, 0), V(23, -7.58866, 0)), False)
sketch7.addGeometry(Part.LineSegment(V(23, -7.58866, 0), V(23, 30.41134, 0)), False)
sketch7.addGeometry(Part.LineSegment(V(23, 30.41134, 0), V(24, 30.41134, 0)), False)
sketch7.addGeometry(Part.LineSegment(V(24, 30.41134, 0), V(24, -7.58866, 0)), False)
sketch7.addConstraint(Sketcher.Constraint("Coincident", 0, 2, 1, 1))
sketch7.addConstraint(Sketcher.Constraint("Coincident", 1, 2, 2, 1))
sketch7.addConstraint(Sketcher.Constraint("Coincident", 2, 2, 3, 1))
sketch7.addConstraint(Sketcher.Constraint("Coincident", 3, 2, 0, 1))
sketch7.addConstraint(Sketcher.Constraint("Horizontal", 0))
sketch7.addConstraint(Sketcher.Constraint("Vertical", 1))
sketch7.addConstraint(Sketcher.Constraint("Horizontal", 2))
sketch7.addConstraint(Sketcher.Constraint("Vertical", 3))
sketch7.addConstraint(Sketcher.Constraint("DistanceX", 0, 2, 0, 1, Q("1 mm")))
sketch7.addConstraint(Sketcher.Constraint("DistanceY", 1, 1, 1, 2, Q("38 mm")))
sketch7.addConstraint(Sketcher.Constraint("DistanceX", -1, 1, 0, 2, Q("23 mm")))
sketch7.addConstraint(Sketcher.Constraint("DistanceY", 0, 2, -1, 1, Q("7.58866 mm")))
sketch7.setExpression("Constraints[8]", "Params.sketch7_width")
sketch7.setExpression("Constraints[9]", "Params.sketch7_height")
pad5 = body.newObject("PartDesign::Pad", "Pad004")
pad5.Profile = sketch7
pad5.setExpression("Length", "Params.pad5_length")
pad5.Reversed = True

sketch8 = body.newObject("Sketcher::SketchObject", "Sketch007")
sketch8.AttachmentSupport = (doc.getObject("YZ_Plane"), [""])
sketch8.MapMode = "FlatFace"
sketch8.AttachmentOffset = App.Placement(V(0, 0, 34.549485), App.Rotation())
sketch8.addGeometry(Part.LineSegment(V(24, 29.41134, 0), V(23, 29.41134, 0)), False)
sketch8.addGeometry(Part.LineSegment(V(23, 29.41134, 0), V(23, 30.41134, 0)), False)
sketch8.addGeometry(Part.LineSegment(V(23, 30.41134, 0), V(24, 30.41134, 0)), False)
sketch8.addGeometry(Part.LineSegment(V(24, 30.41134, 0), V(24, 29.41134, 0)), False)
sketch8.addConstraint(Sketcher.Constraint("Coincident", 0, 2, 1, 1))
sketch8.addConstraint(Sketcher.Constraint("Coincident", 1, 2, 2, 1))
sketch8.addConstraint(Sketcher.Constraint("Coincident", 2, 2, 3, 1))
sketch8.addConstraint(Sketcher.Constraint("Coincident", 3, 2, 0, 1))
sketch8.addConstraint(Sketcher.Constraint("Horizontal", 0))
sketch8.addConstraint(Sketcher.Constraint("Vertical", 1))
sketch8.addConstraint(Sketcher.Constraint("Horizontal", 2))
sketch8.addConstraint(Sketcher.Constraint("Vertical", 3))
sketch8.addConstraint(Sketcher.Constraint("Equal", 2, 1))
sketch8.addConstraint(Sketcher.Constraint("DistanceX", 0, 2, 0, 1, Q("1 mm")))
sketch8.addConstraint(Sketcher.Constraint("DistanceX", -1, 1, 0, 2, Q("23 mm")))
sketch8.addConstraint(Sketcher.Constraint("DistanceY", -1, 1, 0, 2, Q("29.41134 mm")))
sketch8.setExpression("Constraints[9]", "Params.sketch8_width")
pad6 = body.newObject("PartDesign::Pad", "Pad005")
pad6.Profile = sketch8
pad6.setExpression("Length", "Params.pad6_length")
pad6.Reversed = True

sketch9 = body.newObject("Sketcher::SketchObject", "Sketch008")
sketch9.AttachmentSupport = (doc.getObject("XZ_Plane"), [""])
sketch9.MapMode = "FlatFace"
sketch9.AttachmentOffset = App.Placement(V(0, 0, -25.7), App.Rotation())
sketch9.addGeometry(Part.LineSegment(V(35.549485, -7.58866, 0), V(34.549485, -7.58866, 0)), False)
sketch9.addGeometry(Part.LineSegment(V(34.549485, -7.58866, 0), V(34.549485, 29.41134, 0)), False)
sketch9.addGeometry(Part.LineSegment(V(34.549485, 29.41134, 0), V(-15.450515, 29.41134, 0)), False)
sketch9.addGeometry(Part.LineSegment(V(-15.450515, 29.41134, 0), V(-15.450515, 30.41134, 0)), False)
sketch9.addGeometry(Part.LineSegment(V(-15.450515, 30.41134, 0), V(35.549485, 30.41134, 0)), False)
sketch9.addGeometry(Part.LineSegment(V(35.549485, 30.41134, 0), V(35.549485, -7.58866, 0)), False)
sketch9.addConstraint(Sketcher.Constraint("Coincident", 0, 2, 1, 1))
sketch9.addConstraint(Sketcher.Constraint("Coincident", 1, 2, 2, 1))
sketch9.addConstraint(Sketcher.Constraint("Coincident", 2, 2, 3, 1))
sketch9.addConstraint(Sketcher.Constraint("Coincident", 3, 2, 4, 1))
sketch9.addConstraint(Sketcher.Constraint("Coincident", 4, 2, 5, 1))
sketch9.addConstraint(Sketcher.Constraint("Coincident", 5, 2, 0, 1))
sketch9.addConstraint(Sketcher.Constraint("Horizontal", 0))
sketch9.addConstraint(Sketcher.Constraint("Vertical", 1))
sketch9.addConstraint(Sketcher.Constraint("Horizontal", 2))
sketch9.addConstraint(Sketcher.Constraint("Vertical", 3))
sketch9.addConstraint(Sketcher.Constraint("Horizontal", 4))
sketch9.addConstraint(Sketcher.Constraint("Vertical", 5))
sketch9.addConstraint(Sketcher.Constraint("Equal", 0, 3))
sketch9.addConstraint(Sketcher.Constraint("DistanceX", 0, 2, 0, 1, Q("1 mm")))
sketch9.addConstraint(Sketcher.Constraint("DistanceX", 2, 2, 2, 1, Q("50 mm")))
sketch9.addConstraint(Sketcher.Constraint("DistanceY", 1, 1, 1, 2, Q("37 mm")))
sketch9.addConstraint(Sketcher.Constraint("DistanceY", 0, 2, -1, 1, Q("7.58866 mm")))
sketch9.addConstraint(Sketcher.Constraint("DistanceX", -1, 1, 0, 2, Q("34.549485 mm")))
sketch9.setExpression("Constraints[13]", "Params.sketch9_width")
sketch9.setExpression("Constraints[14]", "Params.sketch9_width2")
sketch9.setExpression("Constraints[15]", "Params.sketch9_height")
pad7 = body.newObject("PartDesign::Pad", "Pad006")
pad7.Profile = sketch9
pad7.setExpression("Length", "Params.pad7_length")
pad7.Reversed = True

sketch10 = body.newObject("Sketcher::SketchObject", "Sketch009")
sketch10.AttachmentSupport = (doc.getObject("XZ_Plane"), [""])
sketch10.MapMode = "FlatFace"
sketch10.addGeometry(Part.LineSegment(V(-56.450515, 32.41134, 0), V(-56.450515, -24.58866, 0)), False)
sketch10.addGeometry(Part.LineSegment(V(-56.450515, -24.58866, 0), V(37.549485, -24.58866, 0)), False)
sketch10.addGeometry(Part.LineSegment(V(37.549485, -24.58866, 0), V(37.549485, 32.41134, 0)), False)
sketch10.addGeometry(Part.LineSegment(V(37.549485, 32.41134, 0), V(-56.450515, 32.41134, 0)), False)
sketch10.addConstraint(Sketcher.Constraint("Coincident", 0, 2, 1, 1))
sketch10.addConstraint(Sketcher.Constraint("Coincident", 1, 2, 2, 1))
sketch10.addConstraint(Sketcher.Constraint("Coincident", 2, 2, 3, 1))
sketch10.addConstraint(Sketcher.Constraint("Coincident", 3, 2, 0, 1))
sketch10.addConstraint(Sketcher.Constraint("Vertical", 0))
sketch10.addConstraint(Sketcher.Constraint("Horizontal", 1))
sketch10.addConstraint(Sketcher.Constraint("Vertical", 2))
sketch10.addConstraint(Sketcher.Constraint("Horizontal", 3))
sketch10.addConstraint(Sketcher.Constraint("DistanceX", 1, 1, 1, 2, Q("94 mm")))
sketch10.addConstraint(Sketcher.Constraint("DistanceY", 0, 2, 0, 1, Q("57 mm")))
sketch10.addConstraint(Sketcher.Constraint("DistanceY", 0, 2, -1, 1, Q("24.58866 mm")))
sketch10.addConstraint(Sketcher.Constraint("DistanceX", 0, 2, -1, 1, Q("56.450515 mm")))
sketch10.setExpression("Constraints[8]", "Params.sketch10_width")
sketch10.setExpression("Constraints[9]", "Params.sketch10_height")
pad8 = body.newObject("PartDesign::Pad", "Pad007")
pad8.Profile = sketch10
pad8.setExpression("Length", "Params.pad8_length")

doc.recompute()
